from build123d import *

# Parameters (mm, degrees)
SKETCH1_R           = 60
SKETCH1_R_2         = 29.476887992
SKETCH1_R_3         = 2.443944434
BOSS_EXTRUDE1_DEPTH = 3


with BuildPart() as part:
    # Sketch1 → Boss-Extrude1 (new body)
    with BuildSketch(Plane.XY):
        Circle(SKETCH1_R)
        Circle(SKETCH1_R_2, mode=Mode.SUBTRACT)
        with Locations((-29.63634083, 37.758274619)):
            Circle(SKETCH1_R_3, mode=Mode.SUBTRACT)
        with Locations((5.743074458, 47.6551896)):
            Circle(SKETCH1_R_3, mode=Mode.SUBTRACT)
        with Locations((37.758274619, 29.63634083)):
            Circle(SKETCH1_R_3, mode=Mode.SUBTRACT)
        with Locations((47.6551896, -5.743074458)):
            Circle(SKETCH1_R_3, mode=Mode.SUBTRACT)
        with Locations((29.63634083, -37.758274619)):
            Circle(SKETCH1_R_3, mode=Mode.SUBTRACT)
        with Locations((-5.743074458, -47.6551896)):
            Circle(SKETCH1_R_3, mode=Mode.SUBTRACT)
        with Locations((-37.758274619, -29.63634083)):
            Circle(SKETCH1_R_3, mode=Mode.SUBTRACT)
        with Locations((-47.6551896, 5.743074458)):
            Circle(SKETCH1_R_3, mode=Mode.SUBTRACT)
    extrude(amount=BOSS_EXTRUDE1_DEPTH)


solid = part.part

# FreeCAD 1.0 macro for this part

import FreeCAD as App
import Part
import Sketcher

V = App.Vector
Q = App.Units.Quantity

doc = App.newDocument("Part")
body = doc.addObject("PartDesign::Body", "Body")

sketch1 = body.newObject("Sketcher::SketchObject", "Sketch")
sketch1.AttachmentSupport = (doc.getObject("XY_Plane"), [""])
sketch1.MapMode = "FlatFace"
sketch1.addGeometry([
    Part.Circle(V(0, 0, 0), V(0, 0, 1), 60),
    Part.Circle(V(-37.8, -29.6, 0), V(0, 0, 1), 2.4),
    Part.Circle(V(-5.7, -47.7, 0), V(0, 0, 1), 2.4),
    Part.Circle(V(0, 0, 0), V(0, 0, 1), 29.5),
    Part.Circle(V(29.6, -37.8, 0), V(0, 0, 1), 2.4),
    Part.Circle(V(47.7, -5.7, 0), V(0, 0, 1), 2.4),
    Part.Circle(V(-47.7, 5.7, 0), V(0, 0, 1), 2.4),
    Part.Circle(V(-29.6, 37.8, 0), V(0, 0, 1), 2.4),
    Part.Circle(V(5.7, 47.7, 0), V(0, 0, 1), 2.4),
    Part.Circle(V(37.8, 29.6, 0), V(0, 0, 1), 2.4),
], False)
sketch1.addConstraint([
    Sketcher.Constraint("Coincident", 0, 3, -1, 1),
    Sketcher.Constraint("Coincident", 3, 3, -1, 1),
    Sketcher.Constraint("Equal", 1, 2),
    Sketcher.Constraint("Equal", 2, 4),
    Sketcher.Constraint("Equal", 4, 5),
    Sketcher.Constraint("Equal", 5, 6),
    Sketcher.Constraint("Equal", 6, 7),
    Sketcher.Constraint("Equal", 7, 8),
    Sketcher.Constraint("Equal", 8, 9),
    Sketcher.Constraint("Symmetric", 5, 3, 6, 3, -1, 1),
    Sketcher.Constraint("Symmetric", 4, 3, 7, 3, -1, 1),
    Sketcher.Constraint("Symmetric", 2, 3, 8, 3, -1, 1),
    Sketcher.Constraint("Symmetric", 1, 3, 9, 3, -1, 1),
    Sketcher.Constraint("Diameter", 0, Q("120 mm")),
    Sketcher.Constraint("Diameter", 1, Q("4.887889 mm")),
    Sketcher.Constraint("Diameter", 3, Q("58.953776 mm")),
    Sketcher.Constraint("DistanceX", 1, 3, 2, 3, Q("32.0152 mm")),
    Sketcher.Constraint("DistanceY", 4, 3, 5, 3, Q("32.0152 mm")),
    Sketcher.Constraint("DistanceY", 1, 3, -1, 1, Q("29.636341 mm")),
    Sketcher.Constraint("DistanceY", 2, 3, -1, 1, Q("47.65519 mm")),
    Sketcher.Constraint("DistanceX", -1, 1, 4, 3, Q("29.636341 mm")),
    Sketcher.Constraint("DistanceX", -1, 1, 5, 3, Q("47.65519 mm")),
    Sketcher.Constraint("DistanceY", 4, 3, 6, 3, Q("43.501349 mm")),
    Sketcher.Constraint("DistanceX", 1, 3, -1, 1, Q("37.758275 mm")),
])
pad1 = body.newObject("PartDesign::Pad", "Pad")
pad1.Profile = sketch1
pad1.Length = 3

doc.recompute()
